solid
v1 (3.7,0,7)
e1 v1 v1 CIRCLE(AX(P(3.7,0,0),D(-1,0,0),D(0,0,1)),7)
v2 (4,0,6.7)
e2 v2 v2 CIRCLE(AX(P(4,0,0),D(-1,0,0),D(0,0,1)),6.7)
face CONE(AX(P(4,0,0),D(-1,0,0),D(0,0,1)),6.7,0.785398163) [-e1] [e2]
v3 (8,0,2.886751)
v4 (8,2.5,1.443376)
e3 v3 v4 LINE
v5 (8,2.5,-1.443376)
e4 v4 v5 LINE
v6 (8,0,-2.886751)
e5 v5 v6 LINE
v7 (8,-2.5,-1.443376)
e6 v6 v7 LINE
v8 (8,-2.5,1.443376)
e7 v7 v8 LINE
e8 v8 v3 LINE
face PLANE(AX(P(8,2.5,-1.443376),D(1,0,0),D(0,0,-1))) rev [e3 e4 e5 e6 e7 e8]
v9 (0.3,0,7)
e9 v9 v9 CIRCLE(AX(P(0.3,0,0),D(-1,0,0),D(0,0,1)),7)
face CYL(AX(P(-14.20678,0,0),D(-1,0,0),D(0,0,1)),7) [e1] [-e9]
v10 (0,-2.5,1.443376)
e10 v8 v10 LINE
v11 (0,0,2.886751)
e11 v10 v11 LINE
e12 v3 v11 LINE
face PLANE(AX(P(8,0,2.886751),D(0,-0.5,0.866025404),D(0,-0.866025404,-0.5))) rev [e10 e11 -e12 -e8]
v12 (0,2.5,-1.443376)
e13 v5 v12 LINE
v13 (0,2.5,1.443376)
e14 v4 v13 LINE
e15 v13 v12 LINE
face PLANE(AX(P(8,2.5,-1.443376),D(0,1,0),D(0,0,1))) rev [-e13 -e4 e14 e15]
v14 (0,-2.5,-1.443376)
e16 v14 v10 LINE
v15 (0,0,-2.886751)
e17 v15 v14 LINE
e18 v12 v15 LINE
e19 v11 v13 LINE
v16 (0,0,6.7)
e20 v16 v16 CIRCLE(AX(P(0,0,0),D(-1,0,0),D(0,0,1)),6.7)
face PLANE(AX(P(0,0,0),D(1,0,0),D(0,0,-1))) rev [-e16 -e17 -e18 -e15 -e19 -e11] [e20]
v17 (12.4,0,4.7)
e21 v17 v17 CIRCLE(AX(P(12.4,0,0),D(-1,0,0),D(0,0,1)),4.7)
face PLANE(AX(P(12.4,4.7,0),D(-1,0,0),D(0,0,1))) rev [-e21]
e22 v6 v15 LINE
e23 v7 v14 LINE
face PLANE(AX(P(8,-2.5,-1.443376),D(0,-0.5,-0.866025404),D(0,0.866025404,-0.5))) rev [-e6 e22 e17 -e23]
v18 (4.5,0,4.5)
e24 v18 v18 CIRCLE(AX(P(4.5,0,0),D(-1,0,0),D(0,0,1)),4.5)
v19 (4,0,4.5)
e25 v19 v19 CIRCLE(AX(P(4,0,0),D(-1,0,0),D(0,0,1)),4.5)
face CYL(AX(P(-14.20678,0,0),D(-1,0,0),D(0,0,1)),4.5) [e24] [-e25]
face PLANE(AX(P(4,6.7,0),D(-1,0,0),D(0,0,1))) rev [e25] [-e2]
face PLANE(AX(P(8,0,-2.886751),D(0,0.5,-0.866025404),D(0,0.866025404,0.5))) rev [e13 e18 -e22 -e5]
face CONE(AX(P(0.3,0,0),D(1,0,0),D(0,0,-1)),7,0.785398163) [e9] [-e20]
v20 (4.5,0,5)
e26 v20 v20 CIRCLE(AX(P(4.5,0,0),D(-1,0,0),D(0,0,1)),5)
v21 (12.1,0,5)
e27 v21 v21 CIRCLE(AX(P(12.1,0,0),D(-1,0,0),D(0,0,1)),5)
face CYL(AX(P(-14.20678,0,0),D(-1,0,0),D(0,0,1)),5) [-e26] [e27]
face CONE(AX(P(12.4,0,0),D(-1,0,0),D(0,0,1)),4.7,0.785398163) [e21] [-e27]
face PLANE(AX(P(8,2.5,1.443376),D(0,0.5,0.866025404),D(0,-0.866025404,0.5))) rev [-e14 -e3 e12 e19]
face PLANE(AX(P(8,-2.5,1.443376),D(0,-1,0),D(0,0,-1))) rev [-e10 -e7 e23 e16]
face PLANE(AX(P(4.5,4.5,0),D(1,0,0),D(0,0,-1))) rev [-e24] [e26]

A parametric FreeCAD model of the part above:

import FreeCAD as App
import Part
import Sketcher
Q = App.Units.Quantity


def add_polygon(sketch, points):
    """Adds a closed chain of lines whose ends are joined by coincident constraints."""
    first, n = sketch.GeometryCount, len(points)
    for a, b in zip(points, points[1:] + points[:1]):
        sketch.addGeometry(Part.LineSegment(App.Vector(*a, 0), App.Vector(*b, 0)), False)
    for i in range(n):
        sketch.addConstraint(Sketcher.Constraint("Coincident", first + i, 2, first + (i + 1) % n, 1))

doc = App.newDocument("Part")
body = doc.addObject("PartDesign::Body", "Body")

sketch1 = doc.addObject("Sketcher::SketchObject", "Sketch")
body.addObject(sketch1)
sketch1.AttachmentSupport = (doc.XY_Plane, [""])
sketch1.MapMode = "FlatFace"
add_polygon(sketch1, [(0, 6.7), (0, 0), (12.4, 0), (12.4, 4.7), (12.1, 5), (4.5, 5), (4.5, 4.5), (4, 4.5), (4, 6.7), (3.7, 7), (0.3, 7)])
sketch1.addConstraint([
    Sketcher.Constraint("Vertical", 0),
    Sketcher.Constraint("Horizontal", 1),
    Sketcher.Constraint("Vertical", 2),
    Sketcher.Constraint("Horizontal", 4),
    Sketcher.Constraint("Vertical", 5),
    Sketcher.Constraint("Horizontal", 6),
    Sketcher.Constraint("Vertical", 7),
    Sketcher.Constraint("Horizontal", 9),
    Sketcher.Constraint("Coincident", 0, 2, -1, 1),
    Sketcher.Constraint("Parallel", 3, 8),
    Sketcher.Constraint("Perpendicular", 8, 10),
    Sketcher.Constraint("Horizontal", 7, 2, 10, 2),
    Sketcher.Constraint("Equal", 6, 5),
    Sketcher.Constraint("Equal", 3, 8),
    Sketcher.Constraint("Equal", 8, 10),
    Sketcher.Constraint("DistanceX", 1, 1, 1, 2, Q("12.4 mm")),
    Sketcher.Constraint("DistanceX", 4, 2, 4, 1, Q("7.6 mm")),
    Sketcher.Constraint("DistanceX", 6, 2, 6, 1, Q("0.5 mm")),
    Sketcher.Constraint("DistanceX", 9, 2, 9, 1, Q("3.4 mm")),
    Sketcher.Constraint("DistanceY", 0, 2, 0, 1, Q("6.7 mm")),
    Sketcher.Constraint("DistanceY", 2, 1, 2, 2, Q("4.7 mm")),
])
revolution = doc.addObject("PartDesign::Revolution", "Revolution")
body.addObject(revolution)
revolution.Profile = sketch1
revolution.ReferenceAxis = (sketch1, ["H_Axis"])
revolution.Angle = 360

sketch2 = doc.addObject("Sketcher::SketchObject", "Sketch001")
body.addObject(sketch2)
sketch2.AttachmentSupport = (doc.YZ_Plane, [""])
sketch2.MapMode = "FlatFace"
add_polygon(sketch2, [(2.5, 1.443376), (2.5, -1.443376), (0, -2.886751), (-2.5, -1.443376), (-2.5, 1.443376), (0, 2.886751)])
sketch2.addConstraint([
    Sketcher.Constraint("Vertical", 0),
    Sketcher.Constraint("Vertical", 3),
    Sketcher.Constraint("Symmetric", 0, 2, 3, 2, -1, 1),
    Sketcher.Constraint("Symmetric", 1, 2, 4, 2, -1, 1),
    Sketcher.Constraint("PointOnObject", 1, 2, -2),
    Sketcher.Constraint("Parallel", 2, 5),
    Sketcher.Constraint("Horizontal", 0, 2, 2, 2),
    Sketcher.Constraint("Angle", 1, Q("-150 deg")),
    Sketcher.Constraint("DistanceX", 2, 2, 0, 2, Q("5 mm")),
    Sketcher.Constraint("DistanceY", 0, 2, 0, 1, Q("2.886751 mm")),
])
pocket1 = doc.addObject("PartDesign::Pocket", "Pocket")
body.addObject(pocket1)
pocket1.Profile = sketch2
pocket1.Length = 8
pocket1.Reversed = True

doc.recompute()
